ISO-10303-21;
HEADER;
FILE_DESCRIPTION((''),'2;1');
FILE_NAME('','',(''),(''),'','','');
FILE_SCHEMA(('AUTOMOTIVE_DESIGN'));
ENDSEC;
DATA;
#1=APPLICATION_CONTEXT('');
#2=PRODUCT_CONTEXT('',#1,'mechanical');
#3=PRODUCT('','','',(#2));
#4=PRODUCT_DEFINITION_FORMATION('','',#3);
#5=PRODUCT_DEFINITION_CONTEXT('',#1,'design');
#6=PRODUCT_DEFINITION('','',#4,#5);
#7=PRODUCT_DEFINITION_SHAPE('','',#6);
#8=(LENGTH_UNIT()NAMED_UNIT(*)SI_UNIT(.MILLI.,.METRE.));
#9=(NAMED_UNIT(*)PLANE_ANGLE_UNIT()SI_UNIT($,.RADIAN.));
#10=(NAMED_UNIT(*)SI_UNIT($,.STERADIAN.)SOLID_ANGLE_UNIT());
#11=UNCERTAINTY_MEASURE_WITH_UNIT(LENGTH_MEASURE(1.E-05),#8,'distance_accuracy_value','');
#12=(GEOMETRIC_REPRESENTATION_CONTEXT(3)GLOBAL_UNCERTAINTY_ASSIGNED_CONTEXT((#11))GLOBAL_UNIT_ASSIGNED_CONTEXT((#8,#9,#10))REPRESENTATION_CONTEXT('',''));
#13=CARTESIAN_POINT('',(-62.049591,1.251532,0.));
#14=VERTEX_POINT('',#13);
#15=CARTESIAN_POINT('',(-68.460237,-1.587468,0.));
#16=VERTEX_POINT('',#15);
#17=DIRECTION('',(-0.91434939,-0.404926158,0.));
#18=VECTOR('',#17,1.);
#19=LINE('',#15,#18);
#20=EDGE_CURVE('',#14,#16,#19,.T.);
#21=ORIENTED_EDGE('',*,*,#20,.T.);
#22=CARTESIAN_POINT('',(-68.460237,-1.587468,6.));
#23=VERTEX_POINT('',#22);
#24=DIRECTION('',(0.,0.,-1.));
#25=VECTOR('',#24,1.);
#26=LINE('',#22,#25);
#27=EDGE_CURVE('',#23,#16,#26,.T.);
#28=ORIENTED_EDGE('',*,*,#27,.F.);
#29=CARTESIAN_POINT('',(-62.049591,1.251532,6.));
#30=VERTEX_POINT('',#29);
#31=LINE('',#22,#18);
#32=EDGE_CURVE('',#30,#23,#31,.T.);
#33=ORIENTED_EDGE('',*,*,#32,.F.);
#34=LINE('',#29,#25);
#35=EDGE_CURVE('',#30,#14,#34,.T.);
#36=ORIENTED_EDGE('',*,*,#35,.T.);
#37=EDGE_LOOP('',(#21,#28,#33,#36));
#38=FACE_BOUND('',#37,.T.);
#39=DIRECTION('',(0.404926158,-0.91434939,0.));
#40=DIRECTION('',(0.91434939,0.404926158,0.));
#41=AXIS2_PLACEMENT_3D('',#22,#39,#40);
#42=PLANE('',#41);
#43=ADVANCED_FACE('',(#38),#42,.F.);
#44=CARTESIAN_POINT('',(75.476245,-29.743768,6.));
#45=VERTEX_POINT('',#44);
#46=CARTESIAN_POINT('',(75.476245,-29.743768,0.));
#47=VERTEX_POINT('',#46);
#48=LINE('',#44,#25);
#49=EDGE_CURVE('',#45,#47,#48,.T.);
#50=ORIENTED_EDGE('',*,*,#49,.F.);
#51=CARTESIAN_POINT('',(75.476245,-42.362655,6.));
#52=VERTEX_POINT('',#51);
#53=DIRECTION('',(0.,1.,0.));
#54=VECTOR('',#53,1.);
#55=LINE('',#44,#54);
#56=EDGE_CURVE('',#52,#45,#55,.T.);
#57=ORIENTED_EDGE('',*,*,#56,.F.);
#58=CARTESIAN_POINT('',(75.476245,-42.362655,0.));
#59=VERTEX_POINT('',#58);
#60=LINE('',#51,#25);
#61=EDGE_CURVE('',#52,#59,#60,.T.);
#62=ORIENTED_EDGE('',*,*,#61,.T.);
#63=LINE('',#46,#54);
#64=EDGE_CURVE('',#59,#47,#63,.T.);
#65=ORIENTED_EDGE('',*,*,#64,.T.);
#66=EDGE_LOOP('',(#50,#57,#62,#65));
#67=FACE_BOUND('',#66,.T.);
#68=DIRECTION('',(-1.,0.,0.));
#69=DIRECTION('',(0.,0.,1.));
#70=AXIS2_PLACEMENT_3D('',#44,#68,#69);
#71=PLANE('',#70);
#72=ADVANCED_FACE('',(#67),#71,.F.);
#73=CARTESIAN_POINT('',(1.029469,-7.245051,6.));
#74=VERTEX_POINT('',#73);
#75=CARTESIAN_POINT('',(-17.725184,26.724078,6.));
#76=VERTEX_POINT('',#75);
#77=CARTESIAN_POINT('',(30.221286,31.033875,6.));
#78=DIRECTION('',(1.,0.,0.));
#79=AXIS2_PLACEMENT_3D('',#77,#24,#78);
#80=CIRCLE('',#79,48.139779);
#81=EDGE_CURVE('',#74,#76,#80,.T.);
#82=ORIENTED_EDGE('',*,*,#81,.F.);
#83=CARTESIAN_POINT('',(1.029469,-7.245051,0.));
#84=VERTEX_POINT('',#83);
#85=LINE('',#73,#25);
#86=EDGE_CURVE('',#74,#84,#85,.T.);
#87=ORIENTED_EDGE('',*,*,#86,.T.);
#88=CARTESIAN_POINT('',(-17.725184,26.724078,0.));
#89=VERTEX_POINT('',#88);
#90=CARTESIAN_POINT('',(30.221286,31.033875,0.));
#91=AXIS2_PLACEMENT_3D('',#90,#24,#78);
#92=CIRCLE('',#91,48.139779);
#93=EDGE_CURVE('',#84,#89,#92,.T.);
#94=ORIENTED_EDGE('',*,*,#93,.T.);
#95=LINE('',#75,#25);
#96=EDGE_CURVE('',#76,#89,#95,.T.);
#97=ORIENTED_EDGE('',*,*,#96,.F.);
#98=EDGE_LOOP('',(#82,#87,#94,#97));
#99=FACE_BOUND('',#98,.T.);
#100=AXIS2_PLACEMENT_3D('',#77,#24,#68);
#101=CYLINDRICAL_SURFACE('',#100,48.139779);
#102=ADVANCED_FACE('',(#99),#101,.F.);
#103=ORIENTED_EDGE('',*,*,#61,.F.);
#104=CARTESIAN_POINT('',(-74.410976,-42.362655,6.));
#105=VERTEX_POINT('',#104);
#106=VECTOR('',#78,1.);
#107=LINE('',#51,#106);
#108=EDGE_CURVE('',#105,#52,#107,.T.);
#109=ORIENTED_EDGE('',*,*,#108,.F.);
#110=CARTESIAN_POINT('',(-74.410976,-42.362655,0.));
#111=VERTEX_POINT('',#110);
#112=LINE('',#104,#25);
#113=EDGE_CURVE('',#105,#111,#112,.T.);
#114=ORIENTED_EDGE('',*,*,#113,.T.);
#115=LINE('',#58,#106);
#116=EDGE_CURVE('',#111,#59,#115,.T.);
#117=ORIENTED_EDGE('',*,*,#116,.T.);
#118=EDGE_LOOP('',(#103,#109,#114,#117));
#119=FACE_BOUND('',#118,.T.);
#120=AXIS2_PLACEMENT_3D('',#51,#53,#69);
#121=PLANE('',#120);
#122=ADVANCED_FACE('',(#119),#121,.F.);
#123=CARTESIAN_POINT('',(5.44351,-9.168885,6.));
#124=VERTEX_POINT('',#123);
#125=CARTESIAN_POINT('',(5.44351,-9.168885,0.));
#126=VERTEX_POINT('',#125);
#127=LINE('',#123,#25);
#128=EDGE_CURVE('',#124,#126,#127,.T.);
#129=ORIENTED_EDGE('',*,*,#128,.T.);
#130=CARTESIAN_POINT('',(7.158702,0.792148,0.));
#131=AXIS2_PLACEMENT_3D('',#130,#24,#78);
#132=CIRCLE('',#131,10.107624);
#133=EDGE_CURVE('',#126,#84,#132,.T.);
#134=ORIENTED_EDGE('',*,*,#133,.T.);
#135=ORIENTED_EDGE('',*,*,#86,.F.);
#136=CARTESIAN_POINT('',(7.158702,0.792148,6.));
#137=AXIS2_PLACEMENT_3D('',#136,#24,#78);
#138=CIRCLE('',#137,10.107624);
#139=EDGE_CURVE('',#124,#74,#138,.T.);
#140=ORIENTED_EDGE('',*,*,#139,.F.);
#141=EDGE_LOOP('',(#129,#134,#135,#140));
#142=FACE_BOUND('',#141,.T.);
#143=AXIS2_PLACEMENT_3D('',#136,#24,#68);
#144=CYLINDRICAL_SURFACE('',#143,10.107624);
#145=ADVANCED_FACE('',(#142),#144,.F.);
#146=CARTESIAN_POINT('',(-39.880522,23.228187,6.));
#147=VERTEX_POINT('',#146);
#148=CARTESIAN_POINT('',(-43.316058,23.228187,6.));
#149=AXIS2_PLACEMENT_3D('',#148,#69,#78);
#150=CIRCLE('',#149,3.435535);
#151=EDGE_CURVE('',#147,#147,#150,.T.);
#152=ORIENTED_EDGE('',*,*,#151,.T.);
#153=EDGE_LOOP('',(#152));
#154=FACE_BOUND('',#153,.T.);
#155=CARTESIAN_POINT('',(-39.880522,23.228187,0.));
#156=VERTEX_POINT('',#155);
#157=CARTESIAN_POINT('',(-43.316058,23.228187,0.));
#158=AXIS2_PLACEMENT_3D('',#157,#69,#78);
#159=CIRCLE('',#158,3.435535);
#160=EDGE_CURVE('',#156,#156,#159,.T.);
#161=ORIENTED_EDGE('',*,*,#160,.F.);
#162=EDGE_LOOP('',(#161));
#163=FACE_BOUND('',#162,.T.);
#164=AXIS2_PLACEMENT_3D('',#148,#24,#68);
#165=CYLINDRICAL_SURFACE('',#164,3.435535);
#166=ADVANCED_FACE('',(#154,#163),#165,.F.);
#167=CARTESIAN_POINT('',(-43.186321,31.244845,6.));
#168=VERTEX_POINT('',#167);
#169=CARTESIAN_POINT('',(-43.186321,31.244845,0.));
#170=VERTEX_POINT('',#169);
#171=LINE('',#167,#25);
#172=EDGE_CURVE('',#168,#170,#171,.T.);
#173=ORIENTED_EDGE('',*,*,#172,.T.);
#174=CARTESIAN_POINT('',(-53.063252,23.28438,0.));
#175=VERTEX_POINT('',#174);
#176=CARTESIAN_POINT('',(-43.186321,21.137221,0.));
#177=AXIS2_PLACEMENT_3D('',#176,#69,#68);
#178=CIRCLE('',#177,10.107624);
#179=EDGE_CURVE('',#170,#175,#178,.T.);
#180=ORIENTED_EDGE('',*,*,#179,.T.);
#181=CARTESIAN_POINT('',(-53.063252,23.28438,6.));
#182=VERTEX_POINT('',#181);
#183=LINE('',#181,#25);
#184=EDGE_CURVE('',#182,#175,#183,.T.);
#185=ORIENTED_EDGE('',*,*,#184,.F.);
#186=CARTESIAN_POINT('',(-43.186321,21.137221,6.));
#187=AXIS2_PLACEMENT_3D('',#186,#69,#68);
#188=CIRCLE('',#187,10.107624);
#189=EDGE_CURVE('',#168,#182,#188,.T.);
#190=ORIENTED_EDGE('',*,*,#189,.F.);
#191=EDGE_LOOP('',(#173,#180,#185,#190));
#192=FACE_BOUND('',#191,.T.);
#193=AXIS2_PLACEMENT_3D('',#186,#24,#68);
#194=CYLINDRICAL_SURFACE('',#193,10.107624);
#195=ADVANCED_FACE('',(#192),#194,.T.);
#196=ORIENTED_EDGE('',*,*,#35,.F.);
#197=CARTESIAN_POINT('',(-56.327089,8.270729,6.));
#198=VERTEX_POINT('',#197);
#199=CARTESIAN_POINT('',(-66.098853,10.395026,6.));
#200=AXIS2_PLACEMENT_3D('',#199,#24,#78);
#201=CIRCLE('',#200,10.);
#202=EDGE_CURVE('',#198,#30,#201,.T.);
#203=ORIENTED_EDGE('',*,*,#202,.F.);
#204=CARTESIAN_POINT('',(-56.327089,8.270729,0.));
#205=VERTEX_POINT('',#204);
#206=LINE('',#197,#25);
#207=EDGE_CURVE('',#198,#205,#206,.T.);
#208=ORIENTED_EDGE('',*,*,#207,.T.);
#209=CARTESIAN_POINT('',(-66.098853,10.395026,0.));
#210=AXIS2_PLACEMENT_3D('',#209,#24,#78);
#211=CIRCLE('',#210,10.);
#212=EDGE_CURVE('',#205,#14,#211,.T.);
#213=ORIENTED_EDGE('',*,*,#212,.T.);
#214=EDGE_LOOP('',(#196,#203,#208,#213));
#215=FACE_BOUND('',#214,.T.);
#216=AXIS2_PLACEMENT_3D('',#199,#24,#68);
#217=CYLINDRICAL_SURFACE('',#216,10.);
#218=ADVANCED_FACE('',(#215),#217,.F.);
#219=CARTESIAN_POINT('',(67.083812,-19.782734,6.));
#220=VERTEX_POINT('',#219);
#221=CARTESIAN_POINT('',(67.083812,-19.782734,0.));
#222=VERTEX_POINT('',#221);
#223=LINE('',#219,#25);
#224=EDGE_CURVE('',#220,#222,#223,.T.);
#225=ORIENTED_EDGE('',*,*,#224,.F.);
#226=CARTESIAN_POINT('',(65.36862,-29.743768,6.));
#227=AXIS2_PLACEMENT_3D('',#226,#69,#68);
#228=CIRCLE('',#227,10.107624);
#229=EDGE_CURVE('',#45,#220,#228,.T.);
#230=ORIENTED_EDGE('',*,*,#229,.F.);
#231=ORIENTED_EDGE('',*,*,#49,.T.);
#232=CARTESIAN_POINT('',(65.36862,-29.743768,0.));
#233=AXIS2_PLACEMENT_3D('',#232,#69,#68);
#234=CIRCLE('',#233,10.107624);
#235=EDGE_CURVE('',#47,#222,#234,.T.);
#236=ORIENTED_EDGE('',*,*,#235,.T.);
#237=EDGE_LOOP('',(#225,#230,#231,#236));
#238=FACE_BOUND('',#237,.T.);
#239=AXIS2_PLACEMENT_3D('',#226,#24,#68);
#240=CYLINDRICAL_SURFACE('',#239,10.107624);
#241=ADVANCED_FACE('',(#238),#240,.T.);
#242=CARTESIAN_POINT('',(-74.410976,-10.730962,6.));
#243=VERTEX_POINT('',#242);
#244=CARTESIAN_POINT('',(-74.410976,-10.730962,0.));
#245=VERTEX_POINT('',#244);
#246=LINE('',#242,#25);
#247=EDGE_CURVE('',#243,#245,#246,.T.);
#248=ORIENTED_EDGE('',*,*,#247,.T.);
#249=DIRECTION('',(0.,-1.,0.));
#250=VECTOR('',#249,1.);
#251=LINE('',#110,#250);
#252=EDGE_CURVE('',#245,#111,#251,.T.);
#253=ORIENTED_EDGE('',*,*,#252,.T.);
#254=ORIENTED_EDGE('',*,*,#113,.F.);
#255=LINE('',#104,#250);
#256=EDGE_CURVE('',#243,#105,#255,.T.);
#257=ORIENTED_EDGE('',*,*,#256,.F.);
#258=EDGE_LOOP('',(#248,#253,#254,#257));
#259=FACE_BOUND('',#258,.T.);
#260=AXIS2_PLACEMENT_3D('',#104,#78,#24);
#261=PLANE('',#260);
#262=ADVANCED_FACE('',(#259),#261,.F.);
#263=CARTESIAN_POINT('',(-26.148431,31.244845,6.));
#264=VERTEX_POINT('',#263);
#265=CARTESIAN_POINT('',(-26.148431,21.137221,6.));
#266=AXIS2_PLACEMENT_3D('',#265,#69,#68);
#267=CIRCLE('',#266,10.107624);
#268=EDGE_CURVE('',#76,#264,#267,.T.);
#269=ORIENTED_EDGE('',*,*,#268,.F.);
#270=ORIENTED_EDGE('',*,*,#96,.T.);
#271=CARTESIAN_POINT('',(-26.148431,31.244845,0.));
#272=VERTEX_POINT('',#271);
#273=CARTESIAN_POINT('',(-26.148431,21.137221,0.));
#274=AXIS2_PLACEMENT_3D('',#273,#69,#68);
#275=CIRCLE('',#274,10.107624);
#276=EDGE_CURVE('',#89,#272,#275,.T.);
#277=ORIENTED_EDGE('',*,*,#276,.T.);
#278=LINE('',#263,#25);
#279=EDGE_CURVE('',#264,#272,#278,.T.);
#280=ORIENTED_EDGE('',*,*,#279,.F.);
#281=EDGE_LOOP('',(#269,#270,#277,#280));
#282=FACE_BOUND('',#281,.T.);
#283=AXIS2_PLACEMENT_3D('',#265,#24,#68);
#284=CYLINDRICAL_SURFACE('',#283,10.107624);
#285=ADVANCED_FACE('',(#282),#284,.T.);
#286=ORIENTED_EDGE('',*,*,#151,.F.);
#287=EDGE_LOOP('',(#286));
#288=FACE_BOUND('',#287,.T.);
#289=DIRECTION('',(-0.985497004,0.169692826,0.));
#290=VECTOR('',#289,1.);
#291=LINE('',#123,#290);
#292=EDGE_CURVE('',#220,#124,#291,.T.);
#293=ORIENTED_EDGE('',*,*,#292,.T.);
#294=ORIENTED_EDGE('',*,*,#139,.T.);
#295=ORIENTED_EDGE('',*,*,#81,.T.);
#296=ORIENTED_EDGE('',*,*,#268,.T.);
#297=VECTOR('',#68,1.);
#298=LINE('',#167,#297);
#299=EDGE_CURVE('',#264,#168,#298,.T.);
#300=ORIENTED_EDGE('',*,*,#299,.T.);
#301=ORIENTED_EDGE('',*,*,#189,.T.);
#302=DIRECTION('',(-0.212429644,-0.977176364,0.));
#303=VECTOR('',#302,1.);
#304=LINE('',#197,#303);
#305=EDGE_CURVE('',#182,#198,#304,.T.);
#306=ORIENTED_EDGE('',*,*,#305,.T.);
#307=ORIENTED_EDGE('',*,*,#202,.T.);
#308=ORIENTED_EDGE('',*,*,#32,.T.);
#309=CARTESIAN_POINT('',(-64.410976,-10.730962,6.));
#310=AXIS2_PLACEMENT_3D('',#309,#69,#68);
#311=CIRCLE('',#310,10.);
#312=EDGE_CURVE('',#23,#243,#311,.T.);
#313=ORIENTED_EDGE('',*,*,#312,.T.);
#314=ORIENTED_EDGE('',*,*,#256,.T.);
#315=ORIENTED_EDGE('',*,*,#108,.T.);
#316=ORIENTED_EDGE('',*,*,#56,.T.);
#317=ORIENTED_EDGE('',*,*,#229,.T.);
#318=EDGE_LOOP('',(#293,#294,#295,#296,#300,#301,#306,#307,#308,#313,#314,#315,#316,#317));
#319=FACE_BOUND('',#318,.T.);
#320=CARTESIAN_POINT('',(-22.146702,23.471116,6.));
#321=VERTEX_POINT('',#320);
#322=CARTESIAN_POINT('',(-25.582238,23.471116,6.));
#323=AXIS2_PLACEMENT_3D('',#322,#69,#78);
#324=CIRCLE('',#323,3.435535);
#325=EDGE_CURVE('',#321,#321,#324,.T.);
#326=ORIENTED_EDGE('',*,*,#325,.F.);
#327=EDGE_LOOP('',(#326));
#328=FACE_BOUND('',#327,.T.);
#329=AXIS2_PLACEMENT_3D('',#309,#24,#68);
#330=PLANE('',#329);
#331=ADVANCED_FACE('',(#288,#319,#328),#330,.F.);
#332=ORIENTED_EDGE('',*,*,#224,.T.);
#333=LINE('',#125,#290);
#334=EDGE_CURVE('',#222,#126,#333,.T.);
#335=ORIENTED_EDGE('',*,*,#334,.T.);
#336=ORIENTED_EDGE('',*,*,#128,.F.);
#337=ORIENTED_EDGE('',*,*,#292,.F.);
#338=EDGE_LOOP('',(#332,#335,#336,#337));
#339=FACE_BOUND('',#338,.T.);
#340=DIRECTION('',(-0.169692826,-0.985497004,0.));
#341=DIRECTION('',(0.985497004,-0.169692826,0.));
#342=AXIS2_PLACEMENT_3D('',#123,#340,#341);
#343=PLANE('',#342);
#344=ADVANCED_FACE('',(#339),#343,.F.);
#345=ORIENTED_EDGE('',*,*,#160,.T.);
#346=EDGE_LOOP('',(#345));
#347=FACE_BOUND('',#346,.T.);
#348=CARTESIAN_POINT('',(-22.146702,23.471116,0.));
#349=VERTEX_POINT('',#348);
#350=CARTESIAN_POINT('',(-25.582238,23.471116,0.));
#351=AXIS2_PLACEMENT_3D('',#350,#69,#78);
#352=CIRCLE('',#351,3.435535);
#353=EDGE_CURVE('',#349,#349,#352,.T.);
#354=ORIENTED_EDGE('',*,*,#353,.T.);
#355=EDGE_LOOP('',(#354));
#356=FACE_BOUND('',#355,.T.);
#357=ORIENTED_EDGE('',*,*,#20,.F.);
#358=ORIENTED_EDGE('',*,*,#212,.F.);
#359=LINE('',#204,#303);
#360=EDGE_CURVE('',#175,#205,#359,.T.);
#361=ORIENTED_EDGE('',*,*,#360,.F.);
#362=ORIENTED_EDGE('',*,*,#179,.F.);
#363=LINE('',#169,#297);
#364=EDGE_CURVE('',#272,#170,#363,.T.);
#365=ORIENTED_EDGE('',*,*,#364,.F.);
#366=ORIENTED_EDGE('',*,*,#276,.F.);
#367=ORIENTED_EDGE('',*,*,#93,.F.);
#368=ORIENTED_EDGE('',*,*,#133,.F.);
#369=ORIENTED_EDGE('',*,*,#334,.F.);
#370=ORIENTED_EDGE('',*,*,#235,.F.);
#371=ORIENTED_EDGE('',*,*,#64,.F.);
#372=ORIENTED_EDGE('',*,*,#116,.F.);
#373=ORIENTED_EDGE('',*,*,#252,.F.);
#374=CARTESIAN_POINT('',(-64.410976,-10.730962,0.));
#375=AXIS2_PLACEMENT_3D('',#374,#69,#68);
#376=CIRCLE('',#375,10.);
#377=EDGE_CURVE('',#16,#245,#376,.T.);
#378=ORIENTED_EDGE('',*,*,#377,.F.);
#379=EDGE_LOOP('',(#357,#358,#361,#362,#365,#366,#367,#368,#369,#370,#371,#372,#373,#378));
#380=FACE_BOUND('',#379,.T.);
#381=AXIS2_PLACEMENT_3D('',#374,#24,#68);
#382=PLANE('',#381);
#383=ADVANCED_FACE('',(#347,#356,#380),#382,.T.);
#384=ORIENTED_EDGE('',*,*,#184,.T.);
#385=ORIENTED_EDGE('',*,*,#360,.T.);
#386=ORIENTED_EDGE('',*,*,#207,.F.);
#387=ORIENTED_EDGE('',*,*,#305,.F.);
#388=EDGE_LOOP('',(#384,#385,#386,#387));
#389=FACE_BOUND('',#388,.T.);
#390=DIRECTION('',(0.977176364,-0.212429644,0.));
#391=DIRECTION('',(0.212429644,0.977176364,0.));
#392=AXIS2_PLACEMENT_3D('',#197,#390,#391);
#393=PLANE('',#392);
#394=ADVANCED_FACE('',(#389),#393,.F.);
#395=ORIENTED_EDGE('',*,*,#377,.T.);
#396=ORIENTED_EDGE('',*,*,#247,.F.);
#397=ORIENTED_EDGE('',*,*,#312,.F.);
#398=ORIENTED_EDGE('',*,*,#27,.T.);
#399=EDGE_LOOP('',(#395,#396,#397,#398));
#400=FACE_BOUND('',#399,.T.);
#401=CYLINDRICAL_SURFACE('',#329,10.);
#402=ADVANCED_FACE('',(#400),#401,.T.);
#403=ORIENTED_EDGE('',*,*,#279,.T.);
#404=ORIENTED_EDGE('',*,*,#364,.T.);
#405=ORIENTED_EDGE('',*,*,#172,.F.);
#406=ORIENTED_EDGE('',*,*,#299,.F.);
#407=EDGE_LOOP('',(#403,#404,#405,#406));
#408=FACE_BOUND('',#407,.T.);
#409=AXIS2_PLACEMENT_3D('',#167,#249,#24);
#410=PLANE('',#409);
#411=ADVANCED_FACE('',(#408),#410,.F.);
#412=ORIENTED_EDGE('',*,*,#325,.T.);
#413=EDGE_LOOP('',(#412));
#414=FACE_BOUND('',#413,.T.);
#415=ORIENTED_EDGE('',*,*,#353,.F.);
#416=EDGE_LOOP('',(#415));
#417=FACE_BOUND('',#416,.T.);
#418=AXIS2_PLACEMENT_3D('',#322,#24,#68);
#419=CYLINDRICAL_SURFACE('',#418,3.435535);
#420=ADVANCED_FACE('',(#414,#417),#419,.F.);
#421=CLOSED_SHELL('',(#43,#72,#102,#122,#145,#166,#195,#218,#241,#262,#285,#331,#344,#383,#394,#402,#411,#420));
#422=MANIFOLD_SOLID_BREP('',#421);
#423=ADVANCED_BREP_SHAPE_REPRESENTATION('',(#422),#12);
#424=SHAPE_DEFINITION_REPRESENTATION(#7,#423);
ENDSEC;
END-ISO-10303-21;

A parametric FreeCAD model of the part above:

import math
import FreeCAD as App
import Part
import Sketcher
Q = App.Units.Quantity

doc = App.newDocument("Part")
params = doc.addObject("Spreadsheet::Sheet", "Params")
for row, (alias, value) in enumerate([
    ("sketch1_radius", "10 mm"),
    ("pad1_length", "6 mm"),
], start=1):
    params.set(f"A{row}", alias)
    params.set(f"B{row}", "=" + value)
    params.setAlias(f"B{row}", alias)

body = doc.addObject("PartDesign::Body", "Body")

# Sketch on XY plane
sketch1 = body.newObject("Sketcher::SketchObject", "Sketch")
sketch1.AttachmentSupport = (doc.getObject("XY_Plane"), [""])
sketch1.MapMode = "FlatFace"
sketch1.addGeometry([
    Part.LineSegment(App.Vector(-74.4, -42.4, 0), App.Vector(75.5, -42.4, 0)),  # 0
    Part.LineSegment(App.Vector(75.5, -42.4, 0), App.Vector(75.5, -29.7, 0)),  # 1
    Part.ArcOfCircle(Part.Circle(App.Vector(65.4, -29.7, 0), App.Vector(0, 0, 1), 10.1), math.radians(0), math.radians(80)),  # 2
    Part.LineSegment(App.Vector(67.1, -19.8, 0), App.Vector(5.4, -9.2, 0)),  # 3
    Part.ArcOfCircle(Part.Circle(App.Vector(7.2, 0.8, 0), App.Vector(0, 0, 1), 10.1), math.radians(-127), math.radians(-100)),  # 4
    Part.ArcOfCircle(Part.Circle(App.Vector(30.2, 31, 0), App.Vector(0, 0, 1), 48.1), math.radians(-175), math.radians(-127)),  # 5
    Part.ArcOfCircle(Part.Circle(App.Vector(-26.1, 21.1, 0), App.Vector(0, 0, 1), 10.1), math.radians(34), math.radians(90)),  # 6
    Part.LineSegment(App.Vector(-26.1, 31.2, 0), App.Vector(-43.2, 31.2, 0)),  # 7
    Part.ArcOfCircle(Part.Circle(App.Vector(-43.2, 21.1, 0), App.Vector(0, 0, 1), 10.1), math.radians(90), math.radians(168)),  # 8
    Part.LineSegment(App.Vector(-53.1, 23.3, 0), App.Vector(-56.3, 8.3, 0)),  # 9
    Part.ArcOfCircle(Part.Circle(App.Vector(-66.1, 10.4, 0), App.Vector(0, 0, 1), 10), math.radians(-66), math.radians(-12)),  # 10
    Part.LineSegment(App.Vector(-62, 1.3, 0), App.Vector(-68.5, -1.6, 0)),  # 11
    Part.ArcOfCircle(Part.Circle(App.Vector(-64.4, -10.7, 0), App.Vector(0, 0, 1), 10), math.radians(114), math.radians(180)),  # 12
    Part.LineSegment(App.Vector(-74.4, -10.7, 0), App.Vector(-74.4, -42.4, 0)),  # 13
    Part.Circle(App.Vector(-43.3, 23.2, 0), App.Vector(0, 0, 1), 3.4),  # 14
    Part.Circle(App.Vector(-25.6, 23.5, 0), App.Vector(0, 0, 1), 3.4),  # 15
], False)
sketch1.addConstraint([
    Sketcher.Constraint("Coincident", 0, 2, 1, 1),
    Sketcher.Constraint("Tangent", 1, 2, 2, 1),
    Sketcher.Constraint("Tangent", 2, 2, 3, 1),
    Sketcher.Constraint("Tangent", 3, 2, 4, 2),
    Sketcher.Constraint("Tangent", 4, 1, 5, 2),
    Sketcher.Constraint("Coincident", 5, 1, 6, 1),
    Sketcher.Constraint("Tangent", 6, 2, 7, 1),
    Sketcher.Constraint("Tangent", 7, 2, 8, 1),
    Sketcher.Constraint("Tangent", 8, 2, 9, 1),
    Sketcher.Constraint("Tangent", 9, 2, 10, 2),
    Sketcher.Constraint("Tangent", 10, 1, 11, 1),
    Sketcher.Constraint("Tangent", 11, 2, 12, 1),
    Sketcher.Constraint("Tangent", 12, 2, 13, 1),
    Sketcher.Constraint("Coincident", 13, 2, 0, 1),
    Sketcher.Constraint("Horizontal", 0),
    Sketcher.Constraint("Vertical", 1),
    Sketcher.Constraint("Horizontal", 7),
    Sketcher.Constraint("Vertical", 13),
    Sketcher.Constraint("Equal", 2, 4),
    Sketcher.Constraint("Equal", 4, 6),
    Sketcher.Constraint("Equal", 6, 8),
    Sketcher.Constraint("Equal", 10, 12),
    Sketcher.Constraint("Equal", 14, 15),
    Sketcher.Constraint("Radius", 10, Q("10 mm")),
    Sketcher.Constraint("Diameter", 14, Q("6.871071 mm")),
    Sketcher.Constraint("Radius", 5, Q("48.139779 mm")),
    Sketcher.Constraint("DistanceY", 3, 2, 15, 3, Q("32.640001 mm")),
    Sketcher.Constraint("Radius", 2, Q("10.107624 mm")),
    Sketcher.Constraint("DistanceY", 11, 2, 10, 1, Q("2.839 mm")),
    Sketcher.Constraint("DistanceX", 0, 1, 0, 2, Q("149.88722 mm")),
    Sketcher.Constraint("DistanceX", 7, 2, 7, 1, Q("17.03789 mm")),
    Sketcher.Constraint("DistanceX", -1, 1, 4, 3, Q("7.158702 mm")),
    Sketcher.Constraint("DistanceY", 4, 1, 4, 3, Q("8.037199 mm")),
    Sketcher.Constraint("DistanceX", 6, 3, 4, 1, Q("27.1779 mm")),
    Sketcher.Constraint("DistanceX", 10, 3, 8, 2, Q("13.035601 mm")),
    Sketcher.Constraint("Distance", 9, Q("15.36432 mm")),
    Sketcher.Constraint("DistanceY", 1, 1, 1, 2, Q("12.618887 mm")),
    Sketcher.Constraint("DistanceY", 13, 2, 13, 1, Q("31.631693 mm")),
    Sketcher.Constraint("DistanceX", -1, 1, 2, 3, Q("65.36862 mm")),
    Sketcher.Constraint("DistanceY", -1, 1, 4, 3, Q("0.792148 mm")),
    Sketcher.Constraint("DistanceY", -1, 1, 6, 3, Q("21.137221 mm")),
    Sketcher.Constraint("DistanceY", 10, 3, 14, 3, Q("12.833161 mm")),
    Sketcher.Constraint("DistanceX", 14, 3, 4, 3, Q("50.474759 mm")),
    Sketcher.Constraint("DistanceX", 14, 3, 15, 3, Q("17.73382 mm")),
])
sketch1.setExpression("Constraints[23]", "Params.sketch1_radius")
pad1 = body.newObject("PartDesign::Pad", "Pad")
pad1.Profile = sketch1
pad1.setExpression("Length", "Params.pad1_length")

doc.recompute()
